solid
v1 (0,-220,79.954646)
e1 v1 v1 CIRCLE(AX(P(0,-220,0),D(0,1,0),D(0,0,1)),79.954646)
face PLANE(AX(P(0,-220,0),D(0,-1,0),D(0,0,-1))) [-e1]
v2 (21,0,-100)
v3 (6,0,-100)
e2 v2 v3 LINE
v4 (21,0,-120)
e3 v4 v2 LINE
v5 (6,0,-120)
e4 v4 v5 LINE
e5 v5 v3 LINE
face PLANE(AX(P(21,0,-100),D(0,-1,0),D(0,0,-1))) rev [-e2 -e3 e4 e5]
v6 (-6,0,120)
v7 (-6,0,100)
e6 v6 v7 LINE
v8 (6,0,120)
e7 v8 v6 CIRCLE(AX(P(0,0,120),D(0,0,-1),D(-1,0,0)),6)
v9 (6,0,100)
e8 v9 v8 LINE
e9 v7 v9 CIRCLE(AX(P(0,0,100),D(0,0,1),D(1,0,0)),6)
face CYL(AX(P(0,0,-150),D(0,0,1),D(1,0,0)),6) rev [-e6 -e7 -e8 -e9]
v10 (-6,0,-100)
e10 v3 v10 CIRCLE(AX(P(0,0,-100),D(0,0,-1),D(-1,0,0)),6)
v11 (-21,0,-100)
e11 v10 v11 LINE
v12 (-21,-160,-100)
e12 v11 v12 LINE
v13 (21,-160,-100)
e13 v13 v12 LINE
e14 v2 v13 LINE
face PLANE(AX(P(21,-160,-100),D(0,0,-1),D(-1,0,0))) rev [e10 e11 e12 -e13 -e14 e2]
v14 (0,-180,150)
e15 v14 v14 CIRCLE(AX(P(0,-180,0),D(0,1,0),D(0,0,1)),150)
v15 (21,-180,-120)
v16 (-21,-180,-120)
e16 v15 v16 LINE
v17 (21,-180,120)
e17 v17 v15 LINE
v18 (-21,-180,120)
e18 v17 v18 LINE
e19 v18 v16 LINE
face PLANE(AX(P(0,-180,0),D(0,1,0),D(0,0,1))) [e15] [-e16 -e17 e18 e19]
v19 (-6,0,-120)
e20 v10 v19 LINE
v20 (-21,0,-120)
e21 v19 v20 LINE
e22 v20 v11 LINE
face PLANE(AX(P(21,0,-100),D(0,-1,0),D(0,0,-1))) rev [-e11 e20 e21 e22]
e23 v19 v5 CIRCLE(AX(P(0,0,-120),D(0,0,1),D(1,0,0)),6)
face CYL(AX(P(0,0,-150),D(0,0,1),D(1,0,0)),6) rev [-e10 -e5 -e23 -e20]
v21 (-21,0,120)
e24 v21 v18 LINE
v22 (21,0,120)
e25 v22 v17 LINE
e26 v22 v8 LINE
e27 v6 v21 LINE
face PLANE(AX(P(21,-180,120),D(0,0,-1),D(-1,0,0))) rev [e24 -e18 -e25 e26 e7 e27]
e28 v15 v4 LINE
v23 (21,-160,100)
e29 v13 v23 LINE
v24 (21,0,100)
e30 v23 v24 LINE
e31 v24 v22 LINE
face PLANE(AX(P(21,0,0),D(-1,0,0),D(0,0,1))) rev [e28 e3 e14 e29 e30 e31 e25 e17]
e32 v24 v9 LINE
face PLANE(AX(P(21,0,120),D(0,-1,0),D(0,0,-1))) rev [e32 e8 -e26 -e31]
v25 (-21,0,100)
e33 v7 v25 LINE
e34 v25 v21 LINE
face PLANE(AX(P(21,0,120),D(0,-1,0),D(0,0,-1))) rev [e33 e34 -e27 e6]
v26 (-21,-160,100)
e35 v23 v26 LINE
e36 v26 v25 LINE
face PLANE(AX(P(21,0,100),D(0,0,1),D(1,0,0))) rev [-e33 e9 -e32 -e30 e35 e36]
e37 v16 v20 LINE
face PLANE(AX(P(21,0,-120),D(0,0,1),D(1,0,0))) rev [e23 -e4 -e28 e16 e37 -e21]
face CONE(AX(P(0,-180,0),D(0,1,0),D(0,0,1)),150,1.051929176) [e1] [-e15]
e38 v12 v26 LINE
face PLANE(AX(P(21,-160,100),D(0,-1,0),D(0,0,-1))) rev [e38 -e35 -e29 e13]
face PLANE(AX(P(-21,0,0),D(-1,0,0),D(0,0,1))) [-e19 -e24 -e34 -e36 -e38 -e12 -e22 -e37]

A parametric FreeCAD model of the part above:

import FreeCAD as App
import Part
import Sketcher
from FreeCAD import Vector
Q = App.Units.Quantity

doc = App.newDocument("Part")
body = doc.addObject("PartDesign::Body", "Body")

# Sketch on YZ plane
sketch1 = body.newObject("Sketcher::SketchObject", "Sketch")
sketch1.AttachmentSupport = (doc.getObject("YZ_Plane"), [""])
sketch1.MapMode = "FlatFace"
sketch1.addGeometry([
    Part.LineSegment(Vector(0, 100, 0), Vector(0, 120, 0)),  # 0
    Part.LineSegment(Vector(0, 120, 0), Vector(-180, 120, 0)),  # 1
    Part.LineSegment(Vector(-180, 120, 0), Vector(-180, -120, 0)),  # 2
    Part.LineSegment(Vector(-180, -120, 0), Vector(0, -120, 0)),  # 3
    Part.LineSegment(Vector(0, -120, 0), Vector(0, -100, 0)),  # 4
    Part.LineSegment(Vector(0, -100, 0), Vector(-160, -100, 0)),  # 5
    Part.LineSegment(Vector(-160, -100, 0), Vector(-160, 100, 0)),  # 6
    Part.LineSegment(Vector(-160, 100, 0), Vector(0, 100, 0)),  # 7
], False)
sketch1.addConstraint([
    Sketcher.Constraint("Coincident", 0, 2, 1, 1),
    Sketcher.Constraint("Coincident", 1, 2, 2, 1),
    Sketcher.Constraint("Coincident", 2, 2, 3, 1),
    Sketcher.Constraint("Coincident", 3, 2, 4, 1),
    Sketcher.Constraint("Coincident", 4, 2, 5, 1),
    Sketcher.Constraint("Coincident", 5, 2, 6, 1),
    Sketcher.Constraint("Coincident", 6, 2, 7, 1),
    Sketcher.Constraint("Coincident", 7, 2, 0, 1),
    Sketcher.Constraint("Vertical", 0),
    Sketcher.Constraint("Horizontal", 1),
    Sketcher.Constraint("Vertical", 2),
    Sketcher.Constraint("Horizontal", 3),
    Sketcher.Constraint("Vertical", 4),
    Sketcher.Constraint("Horizontal", 5),
    Sketcher.Constraint("Vertical", 6),
    Sketcher.Constraint("Horizontal", 7),
    Sketcher.Constraint("Symmetric", 0, 2, 3, 2, -1, 1),
    Sketcher.Constraint("Symmetric", 4, 2, 7, 2, -1),
    Sketcher.Constraint("DistanceX", 1, 2, 1, 1, Q("180 mm")),
    Sketcher.Constraint("DistanceX", 5, 2, 5, 1, Q("160 mm")),
    Sketcher.Constraint("DistanceY", 0, 1, 0, 2, Q("20 mm")),
    Sketcher.Constraint("DistanceY", 2, 2, 2, 1, Q("240 mm")),
])
pad1 = body.newObject("PartDesign::Pad", "Pad")
pad1.Profile = sketch1
pad1.Length = 42
pad1.Midplane = True

# Sketch on XY plane
sketch2 = body.newObject("Sketcher::SketchObject", "Sketch001")
sketch2.AttachmentSupport = (doc.getObject("XY_Plane"), [""])
sketch2.MapMode = "FlatFace"
sketch2.addGeometry([
    Part.LineSegment(Vector(150, -180, 0), Vector(0, -180, 0)),
    Part.LineSegment(Vector(0, -180, 0), Vector(0, -220, 0)),
    Part.LineSegment(Vector(0, -220, 0), Vector(80, -220, 0)),
    Part.LineSegment(Vector(80, -220, 0), Vector(150, -180, 0)),
], False)
sketch2.addConstraint([
    Sketcher.Constraint("Coincident", 0, 2, 1, 1),
    Sketcher.Constraint("Coincident", 1, 2, 2, 1),
    Sketcher.Constraint("Coincident", 2, 2, 3, 1),
    Sketcher.Constraint("Coincident", 3, 2, 0, 1),
    Sketcher.Constraint("Horizontal", 0),
    Sketcher.Constraint("Vertical", 1),
    Sketcher.Constraint("Horizontal", 2),
    Sketcher.Constraint("PointOnObject", 0, 2, -2),
    Sketcher.Constraint("DistanceX", 0, 2, 0, 1, Q("150 mm")),
    Sketcher.Constraint("DistanceY", 1, 2, 1, 1, Q("40 mm")),
    Sketcher.Constraint("DistanceY", 0, 2, -1, 1, Q("180 mm")),
    Sketcher.Constraint("Distance", 3, Q("80.661959 mm")),
])
revolution = body.newObject("PartDesign::Revolution", "Revolution")
revolution.Profile = sketch2
revolution.ReferenceAxis = (sketch2, ["V_Axis"])
revolution.Angle = 360

# Sketch on XY plane
sketch3 = body.newObject("Sketcher::SketchObject", "Sketch002")
sketch3.AttachmentSupport = (doc.getObject("XY_Plane"), [""])
sketch3.MapMode = "FlatFace"
sketch3.addGeometry(Part.Circle(Vector(0, 0, 0), Vector(0, 0, 1), 6), False)
sketch3.addConstraint([
    Sketcher.Constraint("Coincident", 0, 3, -1, 1),
    Sketcher.Constraint("Diameter", 0, Q("12 mm")),
])
pocket1 = body.newObject("PartDesign::Pocket", "Pocket")
pocket1.Profile = sketch3
pocket1.Type = "ThroughAll"
pocket1.Midplane = True

doc.recompute()
